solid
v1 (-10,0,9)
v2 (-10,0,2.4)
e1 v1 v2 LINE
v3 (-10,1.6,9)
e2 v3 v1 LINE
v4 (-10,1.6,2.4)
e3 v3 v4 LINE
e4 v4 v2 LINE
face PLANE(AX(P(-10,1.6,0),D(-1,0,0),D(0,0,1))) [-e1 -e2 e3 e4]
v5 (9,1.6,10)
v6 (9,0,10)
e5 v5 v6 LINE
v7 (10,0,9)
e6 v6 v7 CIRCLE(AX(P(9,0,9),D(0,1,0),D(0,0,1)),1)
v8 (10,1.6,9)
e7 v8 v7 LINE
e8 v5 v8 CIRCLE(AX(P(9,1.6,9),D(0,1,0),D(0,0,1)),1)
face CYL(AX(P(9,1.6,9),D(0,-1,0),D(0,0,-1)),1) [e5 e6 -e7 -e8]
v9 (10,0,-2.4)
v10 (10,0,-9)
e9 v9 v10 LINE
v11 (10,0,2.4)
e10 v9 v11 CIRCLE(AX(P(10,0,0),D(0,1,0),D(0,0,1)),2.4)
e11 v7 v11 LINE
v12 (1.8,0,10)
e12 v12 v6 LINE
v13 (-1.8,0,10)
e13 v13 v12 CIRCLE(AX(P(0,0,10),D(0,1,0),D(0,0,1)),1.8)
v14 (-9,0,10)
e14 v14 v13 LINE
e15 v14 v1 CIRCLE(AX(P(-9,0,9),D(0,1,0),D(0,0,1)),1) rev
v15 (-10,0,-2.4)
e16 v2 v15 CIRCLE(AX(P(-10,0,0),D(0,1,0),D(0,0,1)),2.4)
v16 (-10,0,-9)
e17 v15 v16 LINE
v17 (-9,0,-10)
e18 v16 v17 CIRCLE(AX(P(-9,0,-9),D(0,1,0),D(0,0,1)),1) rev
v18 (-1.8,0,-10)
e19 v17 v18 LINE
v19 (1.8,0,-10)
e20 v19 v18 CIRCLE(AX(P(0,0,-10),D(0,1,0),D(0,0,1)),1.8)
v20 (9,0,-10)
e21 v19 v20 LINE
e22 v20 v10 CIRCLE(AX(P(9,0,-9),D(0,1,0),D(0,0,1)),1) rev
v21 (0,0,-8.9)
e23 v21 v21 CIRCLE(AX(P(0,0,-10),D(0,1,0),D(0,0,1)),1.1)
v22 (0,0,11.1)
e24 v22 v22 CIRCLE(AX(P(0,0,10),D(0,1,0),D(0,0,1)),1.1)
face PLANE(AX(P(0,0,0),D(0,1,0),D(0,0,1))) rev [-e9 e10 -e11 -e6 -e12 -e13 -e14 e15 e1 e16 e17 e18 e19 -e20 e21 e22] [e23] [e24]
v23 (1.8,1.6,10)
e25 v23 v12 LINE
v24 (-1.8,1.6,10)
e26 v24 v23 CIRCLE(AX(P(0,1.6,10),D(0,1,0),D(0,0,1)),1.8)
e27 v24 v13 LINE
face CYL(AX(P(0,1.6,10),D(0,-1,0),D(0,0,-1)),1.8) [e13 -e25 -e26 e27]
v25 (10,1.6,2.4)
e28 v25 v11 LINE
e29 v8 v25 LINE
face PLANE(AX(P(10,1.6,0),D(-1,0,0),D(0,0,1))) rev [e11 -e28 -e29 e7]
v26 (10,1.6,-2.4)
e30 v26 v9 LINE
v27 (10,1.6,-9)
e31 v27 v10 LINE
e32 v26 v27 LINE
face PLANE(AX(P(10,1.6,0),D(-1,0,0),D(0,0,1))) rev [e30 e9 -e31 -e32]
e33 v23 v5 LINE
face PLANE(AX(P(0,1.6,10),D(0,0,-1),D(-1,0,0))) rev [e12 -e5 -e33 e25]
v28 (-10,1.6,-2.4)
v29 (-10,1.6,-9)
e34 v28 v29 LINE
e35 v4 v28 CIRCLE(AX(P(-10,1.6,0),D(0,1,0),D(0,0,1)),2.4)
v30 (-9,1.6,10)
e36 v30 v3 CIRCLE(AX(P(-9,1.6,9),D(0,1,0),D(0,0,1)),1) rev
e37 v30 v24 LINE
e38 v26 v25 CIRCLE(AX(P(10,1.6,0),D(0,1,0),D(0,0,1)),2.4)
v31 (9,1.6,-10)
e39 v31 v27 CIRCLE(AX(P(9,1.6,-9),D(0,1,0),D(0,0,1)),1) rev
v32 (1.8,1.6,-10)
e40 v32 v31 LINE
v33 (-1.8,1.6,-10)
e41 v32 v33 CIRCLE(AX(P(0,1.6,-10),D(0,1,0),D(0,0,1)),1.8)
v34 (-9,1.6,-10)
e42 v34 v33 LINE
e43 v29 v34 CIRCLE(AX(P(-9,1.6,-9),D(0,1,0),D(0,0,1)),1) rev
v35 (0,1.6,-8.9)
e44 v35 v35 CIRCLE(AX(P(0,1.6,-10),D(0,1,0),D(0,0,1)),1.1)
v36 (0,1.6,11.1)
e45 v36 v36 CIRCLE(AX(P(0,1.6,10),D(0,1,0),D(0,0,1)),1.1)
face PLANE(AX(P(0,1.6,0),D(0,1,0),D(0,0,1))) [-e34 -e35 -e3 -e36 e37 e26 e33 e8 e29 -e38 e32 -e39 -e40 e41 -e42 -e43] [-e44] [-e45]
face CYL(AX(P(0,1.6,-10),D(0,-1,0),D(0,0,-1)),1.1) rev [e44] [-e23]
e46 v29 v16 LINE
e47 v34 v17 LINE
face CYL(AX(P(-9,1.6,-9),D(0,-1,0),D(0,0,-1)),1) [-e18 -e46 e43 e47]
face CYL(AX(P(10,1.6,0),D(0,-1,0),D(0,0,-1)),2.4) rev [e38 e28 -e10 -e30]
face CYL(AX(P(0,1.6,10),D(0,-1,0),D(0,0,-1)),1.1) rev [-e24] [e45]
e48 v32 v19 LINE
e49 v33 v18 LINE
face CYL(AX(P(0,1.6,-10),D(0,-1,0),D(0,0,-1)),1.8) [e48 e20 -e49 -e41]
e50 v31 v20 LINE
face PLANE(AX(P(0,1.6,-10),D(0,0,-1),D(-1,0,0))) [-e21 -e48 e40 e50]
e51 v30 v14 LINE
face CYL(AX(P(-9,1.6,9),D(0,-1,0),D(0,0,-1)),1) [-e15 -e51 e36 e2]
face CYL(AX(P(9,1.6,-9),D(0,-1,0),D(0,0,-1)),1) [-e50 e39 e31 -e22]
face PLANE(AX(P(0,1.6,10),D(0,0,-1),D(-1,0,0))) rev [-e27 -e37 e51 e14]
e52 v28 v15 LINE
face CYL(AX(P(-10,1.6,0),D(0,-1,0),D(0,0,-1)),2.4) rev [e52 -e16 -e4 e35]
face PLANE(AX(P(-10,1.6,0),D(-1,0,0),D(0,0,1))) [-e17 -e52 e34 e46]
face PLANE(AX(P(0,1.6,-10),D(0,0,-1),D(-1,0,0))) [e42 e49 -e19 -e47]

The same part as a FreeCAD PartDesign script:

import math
import FreeCAD as App
import Part
import Sketcher
from FreeCAD import Vector
Q = App.Units.Quantity

doc = App.newDocument("Part")
body = doc.addObject("PartDesign::Body", "Body")

sketch1 = body.newObject("Sketcher::SketchObject", "Sketch")
sketch1.AttachmentSupport = (doc.getObject("XZ_Plane"), [""])
sketch1.MapMode = "FlatFace"
sketch1.addGeometry([
    Part.ArcOfCircle(Part.Circle(Vector(0, 10, 0), Vector(0, 0, 1), 1.8), math.radians(0), math.radians(180)),
    Part.LineSegment(Vector(1.8, 10, 0), Vector(9, 10, 0)),
    Part.ArcOfCircle(Part.Circle(Vector(9, 9, 0), Vector(0, 0, 1), 1), math.radians(0), math.radians(90)),
    Part.LineSegment(Vector(10, 9, 0), Vector(10, 2.4, 0)),
    Part.ArcOfCircle(Part.Circle(Vector(10, 0, 0), Vector(0, 0, 1), 2.4), math.radians(90), math.radians(270)),
    Part.LineSegment(Vector(10, -2.4, 0), Vector(10, -9, 0)),
    Part.ArcOfCircle(Part.Circle(Vector(9, -9, 0), Vector(0, 0, 1), 1), math.radians(-90), math.radians(0)),
    Part.LineSegment(Vector(9, -10, 0), Vector(1.8, -10, 0)),
    Part.ArcOfCircle(Part.Circle(Vector(0, -10, 0), Vector(0, 0, 1), 1.8), math.radians(180), math.radians(360)),
    Part.LineSegment(Vector(-1.8, -10, 0), Vector(-9, -10, 0)),
    Part.ArcOfCircle(Part.Circle(Vector(-9, -9, 0), Vector(0, 0, 1), 1), math.radians(-180), math.radians(-90)),
    Part.LineSegment(Vector(-10, -9, 0), Vector(-10, -2.4, 0)),
    Part.ArcOfCircle(Part.Circle(Vector(-10, 0, 0), Vector(0, 0, 1), 2.4), math.radians(-90), math.radians(90)),
    Part.LineSegment(Vector(-10, 2.4, 0), Vector(-10, 9, 0)),
    Part.ArcOfCircle(Part.Circle(Vector(-9, 9, 0), Vector(0, 0, 1), 1), math.radians(90), math.radians(180)),
    Part.LineSegment(Vector(-9, 10, 0), Vector(-1.8, 10, 0)),
    Part.Circle(Vector(0, 10, 0), Vector(0, 0, 1), 1.1),
    Part.Circle(Vector(0, -10, 0), Vector(0, 0, 1), 1.1),
], False)
sketch1.addConstraint([
    Sketcher.Constraint("Coincident", 0, 1, 1, 1),
    Sketcher.Constraint("Tangent", 1, 2, 2, 2),
    Sketcher.Constraint("Tangent", 2, 1, 3, 1),
    Sketcher.Constraint("Coincident", 3, 2, 4, 1),
    Sketcher.Constraint("Coincident", 4, 2, 5, 1),
    Sketcher.Constraint("Tangent", 5, 2, 6, 2),
    Sketcher.Constraint("Tangent", 6, 1, 7, 1),
    Sketcher.Constraint("Coincident", 7, 2, 8, 2),
    Sketcher.Constraint("Coincident", 8, 1, 9, 1),
    Sketcher.Constraint("Tangent", 9, 2, 10, 2),
    Sketcher.Constraint("Tangent", 10, 1, 11, 1),
    Sketcher.Constraint("Coincident", 11, 2, 12, 1),
    Sketcher.Constraint("Coincident", 12, 2, 13, 1),
    Sketcher.Constraint("Tangent", 13, 2, 14, 2),
    Sketcher.Constraint("Tangent", 14, 1, 15, 1),
    Sketcher.Constraint("Coincident", 15, 2, 0, 2),
    Sketcher.Constraint("Horizontal", 1),
    Sketcher.Constraint("Vertical", 3),
    Sketcher.Constraint("Vertical", 5),
    Sketcher.Constraint("Horizontal", 7),
    Sketcher.Constraint("Horizontal", 9),
    Sketcher.Constraint("Vertical", 11),
    Sketcher.Constraint("Vertical", 13),
    Sketcher.Constraint("Horizontal", 15),
    Sketcher.Constraint("Coincident", 16, 3, 0, 3),
    Sketcher.Constraint("Coincident", 17, 3, 8, 3),
    Sketcher.Constraint("Equal", 2, 6),
    Sketcher.Constraint("Equal", 0, 8),
    Sketcher.Constraint("Equal", 6, 10),
    Sketcher.Constraint("Equal", 4, 12),
    Sketcher.Constraint("Equal", 10, 14),
    Sketcher.Constraint("Equal", 16, 17),
    Sketcher.Constraint("Symmetric", 0, 3, 8, 3, -1, 1),
    Sketcher.Constraint("Symmetric", 2, 3, 10, 3, -1, 1),
    Sketcher.Constraint("Symmetric", 4, 3, 12, 3, -1, 1),
    Sketcher.Constraint("Symmetric", 6, 3, 14, 3, -1, 1),
    Sketcher.Constraint("Symmetric", 6, 3, 10, 3, -2),
    Sketcher.Constraint("PointOnObject", 0, 3, -2),
    Sketcher.Constraint("PointOnObject", 4, 3, -1),
    Sketcher.Constraint("Horizontal", 16, 3, 0, 1),
    Sketcher.Constraint("Vertical", 4, 3, 2, 1),
    Sketcher.Constraint("Radius", 2, Q("1 mm")),
    Sketcher.Constraint("Diameter", 16, Q("2.2 mm")),
    Sketcher.Constraint("Radius", 0, Q("1.8 mm")),
    Sketcher.Constraint("Radius", 4, Q("2.4 mm")),
    Sketcher.Constraint("DistanceX", 1, 1, 1, 2, Q("7.2 mm")),
    Sketcher.Constraint("DistanceY", 3, 2, 3, 1, Q("6.6 mm")),
])
pad1 = body.newObject("PartDesign::Pad", "Pad")
pad1.Profile = sketch1
pad1.Length = 1.6
pad1.Reversed = True

doc.recompute()
